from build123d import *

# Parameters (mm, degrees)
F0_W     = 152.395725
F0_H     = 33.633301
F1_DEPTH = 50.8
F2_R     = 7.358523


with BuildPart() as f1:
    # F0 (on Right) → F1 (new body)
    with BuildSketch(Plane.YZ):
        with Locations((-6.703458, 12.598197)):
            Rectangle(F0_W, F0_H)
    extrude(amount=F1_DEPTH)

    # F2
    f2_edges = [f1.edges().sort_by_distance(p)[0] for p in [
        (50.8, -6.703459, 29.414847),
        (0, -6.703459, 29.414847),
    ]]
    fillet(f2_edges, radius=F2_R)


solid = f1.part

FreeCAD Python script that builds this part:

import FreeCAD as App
import Part
import Sketcher

V = App.Vector
Q = App.Units.Quantity


def edges_at(feature, points):
    """Names of the edges that pass closest to the given points."""
    edges = feature.Shape.Edges
    near = lambda p: min(range(len(edges)), key=lambda i: edges[i].distToShape(Part.Vertex(*p))[0])
    return sorted({f"Edge{near(p) + 1}" for p in points})

doc = App.newDocument("Part")
params = doc.addObject("Spreadsheet::Sheet", "Params")
for row, (alias, value) in enumerate([
    ("pad1_length", "2 in"),
    ("fillet_radius", "7.358523 mm"),
], start=1):
    params.set(f"A{row}", alias)
    params.set(f"B{row}", "=" + value)
    params.setAlias(f"B{row}", alias)

body = doc.addObject("PartDesign::Body", "Body")

# Sketch on YZ plane
sketch1 = body.newObject("Sketcher::SketchObject", "Sketch")
sketch1.AttachmentSupport = (doc.getObject("YZ_Plane"), [""])
sketch1.MapMode = "FlatFace"
sketch1.addGeometry([
    Part.LineSegment(V(-83, 29, 0), V(-83, -4, 0)),
    Part.LineSegment(V(-83, -4, 0), V(69, -4, 0)),
    Part.LineSegment(V(69, -4, 0), V(69, 29, 0)),
    Part.LineSegment(V(69, 29, 0), V(-83, 29, 0)),
], False)
sketch1.addConstraint([
    Sketcher.Constraint("Coincident", 0, 2, 1, 1),
    Sketcher.Constraint("Coincident", 1, 2, 2, 1),
    Sketcher.Constraint("Coincident", 2, 2, 3, 1),
    Sketcher.Constraint("Coincident", 3, 2, 0, 1),
    Sketcher.Constraint("Vertical", 0),
    Sketcher.Constraint("Horizontal", 1),
    Sketcher.Constraint("Vertical", 2),
    Sketcher.Constraint("Horizontal", 3),
    Sketcher.Constraint("DistanceX", -1, 1, 1, 2, Q("2.7360002 in")),
    Sketcher.Constraint("DistanceY", 0, 2, 0, 1, Q("33.633301 mm")),
    Sketcher.Constraint("DistanceX", 1, 1, 1, 2, Q("152.395725 mm")),
    Sketcher.Constraint("DistanceY", 0, 2, -1, 1, Q("4.218453 mm")),
])
pad1 = body.newObject("PartDesign::Pad", "Pad")
pad1.Profile = sketch1
pad1.setExpression("Length", "Params.pad1_length")
doc.recompute()

fillet = body.newObject("PartDesign::Fillet", "Fillet")
fillet.Base = (pad1, edges_at(pad1, [(50.8, -6.703, 29.415), (0, -6.703, 29.415)]))
fillet.setExpression("Radius", "Params.fillet_radius")

doc.recompute()
